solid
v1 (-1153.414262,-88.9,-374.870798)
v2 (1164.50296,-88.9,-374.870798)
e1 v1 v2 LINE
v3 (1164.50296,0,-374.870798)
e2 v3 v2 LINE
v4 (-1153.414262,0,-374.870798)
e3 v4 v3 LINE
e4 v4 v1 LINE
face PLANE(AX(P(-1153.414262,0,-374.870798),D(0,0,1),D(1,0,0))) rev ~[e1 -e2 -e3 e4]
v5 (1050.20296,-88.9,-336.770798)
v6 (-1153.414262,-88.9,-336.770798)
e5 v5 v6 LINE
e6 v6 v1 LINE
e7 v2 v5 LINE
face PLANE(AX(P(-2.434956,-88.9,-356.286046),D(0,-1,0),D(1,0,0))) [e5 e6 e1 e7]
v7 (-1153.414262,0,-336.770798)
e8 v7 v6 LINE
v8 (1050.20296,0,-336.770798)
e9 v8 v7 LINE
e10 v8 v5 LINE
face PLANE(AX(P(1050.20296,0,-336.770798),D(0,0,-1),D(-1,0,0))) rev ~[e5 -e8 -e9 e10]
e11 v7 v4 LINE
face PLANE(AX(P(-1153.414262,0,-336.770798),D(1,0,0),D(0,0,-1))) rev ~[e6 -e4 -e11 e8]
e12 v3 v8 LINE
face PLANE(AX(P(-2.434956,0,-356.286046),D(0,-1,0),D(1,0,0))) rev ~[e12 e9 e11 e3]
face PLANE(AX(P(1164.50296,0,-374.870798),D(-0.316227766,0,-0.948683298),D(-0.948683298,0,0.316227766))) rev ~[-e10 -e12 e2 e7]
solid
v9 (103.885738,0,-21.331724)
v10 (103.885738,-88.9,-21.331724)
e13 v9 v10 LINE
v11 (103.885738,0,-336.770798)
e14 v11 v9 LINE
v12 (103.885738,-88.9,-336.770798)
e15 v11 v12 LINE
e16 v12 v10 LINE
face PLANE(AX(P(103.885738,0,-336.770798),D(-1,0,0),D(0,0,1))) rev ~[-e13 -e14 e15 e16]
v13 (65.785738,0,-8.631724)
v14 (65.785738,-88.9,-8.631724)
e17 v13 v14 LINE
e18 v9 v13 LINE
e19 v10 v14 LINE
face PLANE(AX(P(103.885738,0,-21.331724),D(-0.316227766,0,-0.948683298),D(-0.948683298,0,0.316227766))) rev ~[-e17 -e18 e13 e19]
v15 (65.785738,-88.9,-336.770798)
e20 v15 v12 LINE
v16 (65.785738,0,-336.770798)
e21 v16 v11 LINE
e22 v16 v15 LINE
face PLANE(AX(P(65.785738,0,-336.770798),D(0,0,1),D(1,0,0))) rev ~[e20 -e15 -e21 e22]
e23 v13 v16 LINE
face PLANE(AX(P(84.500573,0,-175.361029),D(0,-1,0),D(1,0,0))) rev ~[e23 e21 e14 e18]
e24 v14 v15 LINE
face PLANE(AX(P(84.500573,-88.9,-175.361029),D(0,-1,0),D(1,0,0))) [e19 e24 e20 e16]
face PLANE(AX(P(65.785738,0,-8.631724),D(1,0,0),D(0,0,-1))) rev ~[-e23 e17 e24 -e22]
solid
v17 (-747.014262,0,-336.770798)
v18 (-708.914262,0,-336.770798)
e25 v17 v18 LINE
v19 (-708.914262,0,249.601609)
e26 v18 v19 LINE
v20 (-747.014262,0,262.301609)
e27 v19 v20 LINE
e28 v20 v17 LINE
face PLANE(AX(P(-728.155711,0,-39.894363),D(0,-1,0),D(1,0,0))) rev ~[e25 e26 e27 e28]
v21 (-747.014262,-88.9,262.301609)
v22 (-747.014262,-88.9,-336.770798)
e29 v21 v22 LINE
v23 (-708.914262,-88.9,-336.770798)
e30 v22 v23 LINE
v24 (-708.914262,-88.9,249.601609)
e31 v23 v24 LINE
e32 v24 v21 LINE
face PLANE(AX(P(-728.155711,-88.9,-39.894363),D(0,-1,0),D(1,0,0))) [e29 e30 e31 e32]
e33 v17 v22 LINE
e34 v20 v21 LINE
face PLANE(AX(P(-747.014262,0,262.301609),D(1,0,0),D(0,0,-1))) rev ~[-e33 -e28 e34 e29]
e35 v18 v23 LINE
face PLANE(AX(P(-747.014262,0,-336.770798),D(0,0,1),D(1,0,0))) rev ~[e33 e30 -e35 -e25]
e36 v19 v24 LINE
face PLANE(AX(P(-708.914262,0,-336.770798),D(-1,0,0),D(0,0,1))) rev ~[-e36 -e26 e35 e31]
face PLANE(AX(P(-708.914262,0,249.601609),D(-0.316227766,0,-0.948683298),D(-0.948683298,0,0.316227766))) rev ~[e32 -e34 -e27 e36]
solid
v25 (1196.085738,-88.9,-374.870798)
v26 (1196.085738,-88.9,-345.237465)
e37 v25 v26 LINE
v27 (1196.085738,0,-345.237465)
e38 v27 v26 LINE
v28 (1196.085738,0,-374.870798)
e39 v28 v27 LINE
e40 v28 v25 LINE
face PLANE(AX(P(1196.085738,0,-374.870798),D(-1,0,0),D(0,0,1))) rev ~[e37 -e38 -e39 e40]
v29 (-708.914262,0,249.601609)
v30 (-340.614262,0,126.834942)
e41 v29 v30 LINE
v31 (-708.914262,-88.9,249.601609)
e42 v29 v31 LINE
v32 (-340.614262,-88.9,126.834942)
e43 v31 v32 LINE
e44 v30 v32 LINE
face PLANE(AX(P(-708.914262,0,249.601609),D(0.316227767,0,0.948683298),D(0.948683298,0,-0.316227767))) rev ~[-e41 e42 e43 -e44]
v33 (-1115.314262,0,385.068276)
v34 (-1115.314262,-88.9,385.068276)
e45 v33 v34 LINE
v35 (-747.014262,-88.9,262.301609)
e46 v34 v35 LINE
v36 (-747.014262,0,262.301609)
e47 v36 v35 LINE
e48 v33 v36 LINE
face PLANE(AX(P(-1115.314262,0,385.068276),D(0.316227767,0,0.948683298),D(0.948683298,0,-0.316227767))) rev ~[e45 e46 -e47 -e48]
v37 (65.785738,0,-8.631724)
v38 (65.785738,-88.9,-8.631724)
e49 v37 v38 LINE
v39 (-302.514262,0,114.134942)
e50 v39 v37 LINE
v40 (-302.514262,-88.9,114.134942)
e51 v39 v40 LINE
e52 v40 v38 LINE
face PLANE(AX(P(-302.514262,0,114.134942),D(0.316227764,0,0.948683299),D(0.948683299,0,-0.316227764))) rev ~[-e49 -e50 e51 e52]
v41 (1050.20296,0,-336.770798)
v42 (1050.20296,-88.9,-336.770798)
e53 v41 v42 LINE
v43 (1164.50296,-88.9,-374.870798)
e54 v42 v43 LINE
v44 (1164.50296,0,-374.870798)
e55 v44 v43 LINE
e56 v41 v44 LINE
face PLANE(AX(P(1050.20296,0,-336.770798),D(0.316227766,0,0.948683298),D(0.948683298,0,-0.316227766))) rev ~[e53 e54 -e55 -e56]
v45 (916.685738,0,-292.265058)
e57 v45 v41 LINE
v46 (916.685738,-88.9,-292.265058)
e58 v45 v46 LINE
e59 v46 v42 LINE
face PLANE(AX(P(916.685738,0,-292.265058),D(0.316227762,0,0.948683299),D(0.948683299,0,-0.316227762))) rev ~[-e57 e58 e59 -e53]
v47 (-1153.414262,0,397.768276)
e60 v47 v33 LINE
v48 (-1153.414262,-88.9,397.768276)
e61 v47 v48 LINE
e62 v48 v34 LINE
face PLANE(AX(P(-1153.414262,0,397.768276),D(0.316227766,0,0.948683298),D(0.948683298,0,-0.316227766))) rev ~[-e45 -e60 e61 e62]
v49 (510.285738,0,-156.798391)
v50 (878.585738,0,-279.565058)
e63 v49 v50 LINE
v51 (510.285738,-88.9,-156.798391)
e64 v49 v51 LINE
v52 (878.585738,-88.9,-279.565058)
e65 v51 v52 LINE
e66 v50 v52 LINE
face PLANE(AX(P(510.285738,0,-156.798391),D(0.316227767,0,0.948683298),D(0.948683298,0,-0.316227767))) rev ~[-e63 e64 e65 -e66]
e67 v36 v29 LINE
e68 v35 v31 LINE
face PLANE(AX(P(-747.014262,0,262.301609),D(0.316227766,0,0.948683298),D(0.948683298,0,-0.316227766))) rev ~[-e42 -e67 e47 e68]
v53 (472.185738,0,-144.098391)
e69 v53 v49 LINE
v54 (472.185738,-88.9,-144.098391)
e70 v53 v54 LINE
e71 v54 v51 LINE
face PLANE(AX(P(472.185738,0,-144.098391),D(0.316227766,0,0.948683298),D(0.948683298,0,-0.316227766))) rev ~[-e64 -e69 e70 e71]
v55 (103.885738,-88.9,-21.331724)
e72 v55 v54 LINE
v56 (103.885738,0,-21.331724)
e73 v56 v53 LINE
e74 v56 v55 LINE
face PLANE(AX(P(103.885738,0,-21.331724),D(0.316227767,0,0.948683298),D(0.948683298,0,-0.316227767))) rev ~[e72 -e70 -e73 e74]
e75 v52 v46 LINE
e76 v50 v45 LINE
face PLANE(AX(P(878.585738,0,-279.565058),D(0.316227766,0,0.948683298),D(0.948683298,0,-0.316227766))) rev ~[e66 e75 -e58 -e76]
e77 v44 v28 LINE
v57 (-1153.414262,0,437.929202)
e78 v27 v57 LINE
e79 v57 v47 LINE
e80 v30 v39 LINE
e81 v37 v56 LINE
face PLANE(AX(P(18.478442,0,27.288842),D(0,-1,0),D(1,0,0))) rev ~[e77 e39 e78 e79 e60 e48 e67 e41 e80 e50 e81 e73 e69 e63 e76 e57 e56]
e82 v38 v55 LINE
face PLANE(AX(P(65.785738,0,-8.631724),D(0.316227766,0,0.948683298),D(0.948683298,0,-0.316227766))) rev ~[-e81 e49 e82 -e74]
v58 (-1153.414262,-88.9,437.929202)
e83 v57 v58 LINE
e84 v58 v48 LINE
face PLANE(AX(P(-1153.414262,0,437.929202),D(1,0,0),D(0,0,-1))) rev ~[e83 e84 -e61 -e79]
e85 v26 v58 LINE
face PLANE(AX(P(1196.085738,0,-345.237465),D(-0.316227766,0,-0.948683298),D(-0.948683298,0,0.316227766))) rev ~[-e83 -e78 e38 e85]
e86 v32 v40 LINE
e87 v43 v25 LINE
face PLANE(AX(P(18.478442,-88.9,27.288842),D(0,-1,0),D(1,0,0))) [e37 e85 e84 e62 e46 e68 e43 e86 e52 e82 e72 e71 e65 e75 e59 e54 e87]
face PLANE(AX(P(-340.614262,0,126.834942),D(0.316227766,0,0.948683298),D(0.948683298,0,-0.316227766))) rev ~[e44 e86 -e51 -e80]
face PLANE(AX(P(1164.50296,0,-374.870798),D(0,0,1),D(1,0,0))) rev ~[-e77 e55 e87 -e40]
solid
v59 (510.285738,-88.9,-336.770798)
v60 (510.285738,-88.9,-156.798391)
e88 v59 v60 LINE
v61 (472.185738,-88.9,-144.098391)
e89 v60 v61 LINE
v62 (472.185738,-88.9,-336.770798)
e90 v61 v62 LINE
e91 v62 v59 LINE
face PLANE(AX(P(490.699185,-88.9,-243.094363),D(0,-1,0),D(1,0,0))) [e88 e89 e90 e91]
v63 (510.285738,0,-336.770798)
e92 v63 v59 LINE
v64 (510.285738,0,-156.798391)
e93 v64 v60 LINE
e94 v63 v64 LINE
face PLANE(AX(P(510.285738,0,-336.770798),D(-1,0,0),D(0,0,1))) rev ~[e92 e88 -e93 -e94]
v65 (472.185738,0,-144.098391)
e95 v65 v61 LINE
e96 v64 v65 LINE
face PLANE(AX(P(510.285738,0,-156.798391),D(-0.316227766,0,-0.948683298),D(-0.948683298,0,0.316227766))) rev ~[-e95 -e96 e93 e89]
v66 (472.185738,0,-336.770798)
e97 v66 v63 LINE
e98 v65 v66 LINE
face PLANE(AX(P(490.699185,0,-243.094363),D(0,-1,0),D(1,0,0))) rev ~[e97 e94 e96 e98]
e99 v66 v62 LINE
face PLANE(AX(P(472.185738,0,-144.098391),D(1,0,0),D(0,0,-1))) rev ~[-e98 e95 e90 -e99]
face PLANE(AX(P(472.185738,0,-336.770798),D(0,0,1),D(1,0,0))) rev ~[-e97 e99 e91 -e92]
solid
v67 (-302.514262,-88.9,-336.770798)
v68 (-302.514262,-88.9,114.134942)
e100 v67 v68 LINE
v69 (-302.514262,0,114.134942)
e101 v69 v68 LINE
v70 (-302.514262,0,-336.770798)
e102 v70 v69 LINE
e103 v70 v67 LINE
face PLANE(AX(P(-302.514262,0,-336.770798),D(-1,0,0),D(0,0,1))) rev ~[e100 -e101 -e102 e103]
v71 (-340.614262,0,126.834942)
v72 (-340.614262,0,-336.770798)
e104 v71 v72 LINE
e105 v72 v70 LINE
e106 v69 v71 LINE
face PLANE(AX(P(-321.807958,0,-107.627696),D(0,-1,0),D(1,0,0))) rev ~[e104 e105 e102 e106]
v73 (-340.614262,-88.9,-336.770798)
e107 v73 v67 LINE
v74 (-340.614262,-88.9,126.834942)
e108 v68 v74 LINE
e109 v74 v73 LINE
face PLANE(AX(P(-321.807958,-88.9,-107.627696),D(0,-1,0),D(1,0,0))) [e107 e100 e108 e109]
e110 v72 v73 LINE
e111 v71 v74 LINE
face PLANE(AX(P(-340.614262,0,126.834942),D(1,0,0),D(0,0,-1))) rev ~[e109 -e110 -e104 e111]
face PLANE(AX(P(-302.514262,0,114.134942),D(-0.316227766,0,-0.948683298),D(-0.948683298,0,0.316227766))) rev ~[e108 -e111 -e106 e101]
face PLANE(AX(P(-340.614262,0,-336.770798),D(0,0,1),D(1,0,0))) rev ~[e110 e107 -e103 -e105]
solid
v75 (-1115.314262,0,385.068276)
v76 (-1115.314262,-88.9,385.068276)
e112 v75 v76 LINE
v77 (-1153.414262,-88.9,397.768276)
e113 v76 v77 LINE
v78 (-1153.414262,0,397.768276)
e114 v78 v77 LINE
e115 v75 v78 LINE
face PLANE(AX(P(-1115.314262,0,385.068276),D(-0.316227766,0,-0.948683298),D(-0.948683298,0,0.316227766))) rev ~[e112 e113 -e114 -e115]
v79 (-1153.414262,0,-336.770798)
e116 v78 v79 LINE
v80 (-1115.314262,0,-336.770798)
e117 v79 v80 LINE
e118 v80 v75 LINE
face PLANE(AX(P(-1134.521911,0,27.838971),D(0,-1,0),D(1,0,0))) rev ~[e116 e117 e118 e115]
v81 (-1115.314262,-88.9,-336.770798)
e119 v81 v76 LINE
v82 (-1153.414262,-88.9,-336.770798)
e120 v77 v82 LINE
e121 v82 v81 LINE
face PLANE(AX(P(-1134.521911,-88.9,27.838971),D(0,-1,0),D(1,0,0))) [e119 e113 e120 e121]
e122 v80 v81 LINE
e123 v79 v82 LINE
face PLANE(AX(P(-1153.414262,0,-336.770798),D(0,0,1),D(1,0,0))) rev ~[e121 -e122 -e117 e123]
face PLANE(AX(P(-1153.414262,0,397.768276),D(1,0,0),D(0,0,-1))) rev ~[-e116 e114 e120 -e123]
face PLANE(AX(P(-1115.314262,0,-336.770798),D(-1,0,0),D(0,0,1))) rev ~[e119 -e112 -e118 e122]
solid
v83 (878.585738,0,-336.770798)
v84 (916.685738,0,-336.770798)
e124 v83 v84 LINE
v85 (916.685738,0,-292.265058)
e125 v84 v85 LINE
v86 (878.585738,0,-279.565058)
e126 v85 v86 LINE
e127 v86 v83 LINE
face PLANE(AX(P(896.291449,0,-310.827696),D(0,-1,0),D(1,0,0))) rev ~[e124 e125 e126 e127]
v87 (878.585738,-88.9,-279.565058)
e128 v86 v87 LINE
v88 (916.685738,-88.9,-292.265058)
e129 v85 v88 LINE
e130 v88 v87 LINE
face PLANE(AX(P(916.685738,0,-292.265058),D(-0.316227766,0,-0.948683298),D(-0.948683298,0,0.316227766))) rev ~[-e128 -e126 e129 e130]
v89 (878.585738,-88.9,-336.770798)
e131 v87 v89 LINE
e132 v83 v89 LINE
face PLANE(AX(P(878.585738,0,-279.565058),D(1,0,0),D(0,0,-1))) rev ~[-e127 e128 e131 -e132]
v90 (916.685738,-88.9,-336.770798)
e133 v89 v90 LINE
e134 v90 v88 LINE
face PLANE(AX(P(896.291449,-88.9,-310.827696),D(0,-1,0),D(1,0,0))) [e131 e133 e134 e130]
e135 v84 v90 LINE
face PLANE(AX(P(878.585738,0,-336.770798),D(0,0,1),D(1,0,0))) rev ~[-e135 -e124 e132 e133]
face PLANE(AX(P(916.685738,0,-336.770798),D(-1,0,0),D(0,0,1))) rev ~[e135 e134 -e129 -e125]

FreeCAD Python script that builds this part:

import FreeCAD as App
import Part
import Sketcher

V = App.Vector
Q = App.Units.Quantity

doc = App.newDocument("Part")
body = doc.addObject("PartDesign::Body", "Body")
body.AllowCompound = True

# Sketch on XZ plane
sketch1 = doc.addObject("Sketcher::SketchObject", "Sketch")
body.addObject(sketch1)
sketch1.AttachmentSupport = (doc.XZ_Plane, [""])
sketch1.MapMode = "FlatFace"
sketch1.addGeometry([
    Part.LineSegment(V(-1153.414262, 397.768276, 0), V(-1153.414262, -336.770798, 0)),  # 0
    Part.LineSegment(V(-1153.414262, -336.770798, 0), V(-1115.314262, -336.770798, 0)),  # 1
    Part.LineSegment(V(-1115.314262, -336.770798, 0), V(-1115.314262, 385.068276, 0)),  # 2
    Part.LineSegment(V(-1115.314262, 385.068276, 0), V(-1153.414262, 397.768276, 0)),  # 3
    Part.LineSegment(V(-747.014262, 262.301609, 0), V(-747.014262, -336.770798, 0)),  # 4
    Part.LineSegment(V(-747.014262, -336.770798, 0), V(-708.914262, -336.770798, 0)),  # 5
    Part.LineSegment(V(-708.914262, -336.770798, 0), V(-708.914262, 249.601609, 0)),  # 6
    Part.LineSegment(V(-708.914262, 249.601609, 0), V(-747.014262, 262.301609, 0)),  # 7
    Part.LineSegment(V(-340.614262, 126.834942, 0), V(-340.614262, -336.770798, 0)),  # 8
    Part.LineSegment(V(-340.614262, -336.770798, 0), V(-302.514262, -336.770798, 0)),  # 9
    Part.LineSegment(V(-302.514262, -336.770798, 0), V(-302.514262, 114.134942, 0)),  # 10
    Part.LineSegment(V(-302.514262, 114.134942, 0), V(-340.614262, 126.834942, 0)),  # 11
    Part.LineSegment(V(65.785738, -336.770798, 0), V(103.885738, -336.770798, 0)),  # 12
    Part.LineSegment(V(103.885738, -336.770798, 0), V(103.885738, -21.331724, 0)),  # 13
    Part.LineSegment(V(103.885738, -21.331724, 0), V(65.785738, -8.631724, 0)),  # 14
    Part.LineSegment(V(65.785738, -8.631724, 0), V(65.785738, -336.770798, 0)),  # 15
    Part.LineSegment(V(472.185738, -336.770798, 0), V(510.285738, -336.770798, 0)),  # 16
    Part.LineSegment(V(510.285738, -336.770798, 0), V(510.285738, -156.798391, 0)),  # 17
    Part.LineSegment(V(510.285738, -156.798391, 0), V(472.185738, -144.098391, 0)),  # 18
    Part.LineSegment(V(472.185738, -144.098391, 0), V(472.185738, -336.770798, 0)),  # 19
    Part.LineSegment(V(878.585738, -336.770798, 0), V(916.685738, -336.770798, 0)),  # 20
    Part.LineSegment(V(916.685738, -336.770798, 0), V(916.685738, -292.265058, 0)),  # 21
    Part.LineSegment(V(916.685738, -292.265058, 0), V(878.585738, -279.565058, 0)),  # 22
    Part.LineSegment(V(878.585738, -279.565058, 0), V(878.585738, -336.770798, 0)),  # 23
], False)
sketch1.addConstraint([
    Sketcher.Constraint("Coincident", 0, 2, 1, 1),
    Sketcher.Constraint("Coincident", 1, 2, 2, 1),
    Sketcher.Constraint("Coincident", 2, 2, 3, 1),
    Sketcher.Constraint("Coincident", 3, 2, 0, 1),
    Sketcher.Constraint("Coincident", 4, 2, 5, 1),
    Sketcher.Constraint("Coincident", 5, 2, 6, 1),
    Sketcher.Constraint("Coincident", 6, 2, 7, 1),
    Sketcher.Constraint("Coincident", 7, 2, 4, 1),
    Sketcher.Constraint("Coincident", 8, 2, 9, 1),
    Sketcher.Constraint("Coincident", 9, 2, 10, 1),
    Sketcher.Constraint("Coincident", 10, 2, 11, 1),
    Sketcher.Constraint("Coincident", 11, 2, 8, 1),
    Sketcher.Constraint("Coincident", 12, 2, 13, 1),
    Sketcher.Constraint("Coincident", 13, 2, 14, 1),
    Sketcher.Constraint("Coincident", 14, 2, 15, 1),
    Sketcher.Constraint("Coincident", 15, 2, 12, 1),
    Sketcher.Constraint("Coincident", 16, 2, 17, 1),
    Sketcher.Constraint("Coincident", 17, 2, 18, 1),
    Sketcher.Constraint("Coincident", 18, 2, 19, 1),
    Sketcher.Constraint("Coincident", 19, 2, 16, 1),
    Sketcher.Constraint("Coincident", 20, 2, 21, 1),
    Sketcher.Constraint("Coincident", 21, 2, 22, 1),
    Sketcher.Constraint("Coincident", 22, 2, 23, 1),
    Sketcher.Constraint("Coincident", 23, 2, 20, 1),
    Sketcher.Constraint("Vertical", 0),
    Sketcher.Constraint("Horizontal", 1),
    Sketcher.Constraint("Vertical", 2),
    Sketcher.Constraint("Vertical", 4),
    Sketcher.Constraint("Horizontal", 5),
    Sketcher.Constraint("Vertical", 6),
    Sketcher.Constraint("Vertical", 8),
    Sketcher.Constraint("Horizontal", 9),
    Sketcher.Constraint("Vertical", 10),
    Sketcher.Constraint("Horizontal", 12),
    Sketcher.Constraint("Vertical", 13),
    Sketcher.Constraint("Vertical", 15),
    Sketcher.Constraint("Horizontal", 16),
    Sketcher.Constraint("Vertical", 17),
    Sketcher.Constraint("Vertical", 19),
    Sketcher.Constraint("Horizontal", 20),
    Sketcher.Constraint("Vertical", 21),
    Sketcher.Constraint("Vertical", 23),
    Sketcher.Constraint("Parallel", 3, 7),
    Sketcher.Constraint("Parallel", 7, 11),
    Sketcher.Constraint("Parallel", 11, 14),
    Sketcher.Constraint("Parallel", 14, 18),
    Sketcher.Constraint("Parallel", 18, 22),
    Sketcher.Constraint("Horizontal", 1, 2, 4, 2),
    Sketcher.Constraint("Horizontal", 5, 2, 8, 2),
    Sketcher.Constraint("Horizontal", 9, 2, 12, 2),
    Sketcher.Constraint("Horizontal", 15, 2, 16, 2),
    Sketcher.Constraint("Horizontal", 19, 2, 20, 2),
    Sketcher.Constraint("Equal", 1, 5),
    Sketcher.Constraint("Equal", 5, 9),
    Sketcher.Constraint("Equal", 9, 12),
    Sketcher.Constraint("Equal", 12, 16),
    Sketcher.Constraint("Equal", 16, 20),
    Sketcher.Constraint("DistanceX", 1, 1, 1, 2, Q("1.5 in")),
    Sketcher.Constraint("DistanceX", 0, 2, 4, 2, Q("16 in")),
    Sketcher.Constraint("DistanceX", 4, 2, 8, 2, Q("16 in")),
    Sketcher.Constraint("DistanceX", 9, 2, 12, 2, Q("16 in")),
    Sketcher.Constraint("DistanceX", 12, 2, 16, 2, Q("16 in")),
    Sketcher.Constraint("DistanceX", 16, 2, 20, 2, Q("16 in")),
    Sketcher.Constraint("DistanceY", 2, 2, 3, 2, Q("0.5 in")),
    Sketcher.Constraint("DistanceY", 8, 2, 8, 1, 463.60574),
    Sketcher.Constraint("DistanceY", 21, 1, 21, 2, 44.50574),
    Sketcher.Constraint("DistanceY", 0, 2, -1, 1, 336.770798),
    Sketcher.Constraint("DistanceY", 0, 2, 0, 1, 734.539074),
    Sketcher.Constraint("DistanceY", 4, 2, 4, 1, 599.072407),
    Sketcher.Constraint("DistanceY", 13, 1, 13, 2, 315.439074),
    Sketcher.Constraint("DistanceY", 17, 1, 17, 2, 179.972407),
    Sketcher.Constraint("DistanceX", 0, 2, -1, 1, 1153.414262),
])
pad1 = doc.addObject("PartDesign::Pad", "Pad")
body.addObject(pad1)
pad1.Profile = sketch1
pad1.Length = Q("3.5 in")
body2 = doc.addObject("PartDesign::Body", "Body001")

# Sketch on XZ plane
sketch2 = doc.addObject("Sketcher::SketchObject", "Sketch001")
body2.addObject(sketch2)
sketch2.AttachmentSupport = (doc.getObject("XZ_Plane001"), [""])
sketch2.MapMode = "FlatFace"
sketch2.addGeometry([
    Part.LineSegment(V(1050.20296, -336.770798, 0), V(1164.50296, -374.870798, 0)),  # 0
    Part.LineSegment(V(1164.50296, -374.870798, 0), V(1196.085738, -374.870798, 0)),  # 1
    Part.LineSegment(V(1196.085738, -374.870798, 0), V(1196.085738, -345.237465, 0)),  # 2
    Part.LineSegment(V(1196.085738, -345.237465, 0), V(-1153.414262, 437.929202, 0)),  # 3
    Part.LineSegment(V(-1153.414262, 437.929202, 0), V(-1153.414262, 397.768276, 0)),  # 4
    Part.LineSegment(V(-1153.414262, 397.768276, 0), V(-1115.314262, 385.068276, 0)),  # 5
    Part.LineSegment(V(-1115.314262, 385.068276, 0), V(-747.014262, 262.301609, 0)),  # 6
    Part.LineSegment(V(-747.014262, 262.301609, 0), V(-708.914262, 249.601609, 0)),  # 7
    Part.LineSegment(V(-708.914262, 249.601609, 0), V(-340.614262, 126.834942, 0)),  # 8
    Part.LineSegment(V(-340.614262, 126.834942, 0), V(-302.514262, 114.134942, 0)),  # 9
    Part.LineSegment(V(-302.514262, 114.134942, 0), V(65.785738, -8.631724, 0)),  # 10
    Part.LineSegment(V(65.785738, -8.631724, 0), V(103.885738, -21.331724, 0)),  # 11
    Part.LineSegment(V(103.885738, -21.331724, 0), V(472.185738, -144.098391, 0)),  # 12
    Part.LineSegment(V(472.185738, -144.098391, 0), V(510.285738, -156.798391, 0)),  # 13
    Part.LineSegment(V(510.285738, -156.798391, 0), V(878.585738, -279.565058, 0)),  # 14
    Part.LineSegment(V(878.585738, -279.565058, 0), V(916.685738, -292.265058, 0)),  # 15
    Part.LineSegment(V(916.685738, -292.265058, 0), V(1050.20296, -336.770798, 0)),  # 16
], False)
sketch2.addConstraint([
    Sketcher.Constraint("Coincident", 0, 2, 1, 1),
    Sketcher.Constraint("Coincident", 1, 2, 2, 1),
    Sketcher.Constraint("Coincident", 2, 2, 3, 1),
    Sketcher.Constraint("Coincident", 3, 2, 4, 1),
    Sketcher.Constraint("Coincident", 4, 2, 5, 1),
    Sketcher.Constraint("Coincident", 5, 2, 6, 1),
    Sketcher.Constraint("Coincident", 6, 2, 7, 1),
    Sketcher.Constraint("Coincident", 7, 2, 8, 1),
    Sketcher.Constraint("Coincident", 8, 2, 9, 1),
    Sketcher.Constraint("Coincident", 9, 2, 10, 1),
    Sketcher.Constraint("Coincident", 10, 2, 11, 1),
    Sketcher.Constraint("Coincident", 11, 2, 12, 1),
    Sketcher.Constraint("Coincident", 12, 2, 13, 1),
    Sketcher.Constraint("Coincident", 13, 2, 14, 1),
    Sketcher.Constraint("Coincident", 14, 2, 15, 1),
    Sketcher.Constraint("Coincident", 15, 2, 16, 1),
    Sketcher.Constraint("Coincident", 16, 2, 0, 1),
    Sketcher.Constraint("Horizontal", 1),
    Sketcher.Constraint("Vertical", 2),
    Sketcher.Constraint("Vertical", 4),
    Sketcher.Constraint("Parallel", 0, 3),
    Sketcher.Constraint("Parallel", 3, 5),
    Sketcher.Constraint("Parallel", 5, 6),
    Sketcher.Constraint("Parallel", 6, 7),
    Sketcher.Constraint("Parallel", 7, 8),
    Sketcher.Constraint("Parallel", 8, 9),
    Sketcher.Constraint("Parallel", 9, 10),
    Sketcher.Constraint("Parallel", 10, 11),
    Sketcher.Constraint("Parallel", 11, 12),
    Sketcher.Constraint("Parallel", 12, 13),
    Sketcher.Constraint("Parallel", 13, 14),
    Sketcher.Constraint("Parallel", 14, 15),
    Sketcher.Constraint("Parallel", 15, 16),
    Sketcher.Constraint("Equal", 5, 7),
    Sketcher.Constraint("Equal", 6, 8),
    Sketcher.Constraint("Equal", 7, 9),
    Sketcher.Constraint("Equal", 8, 10),
    Sketcher.Constraint("Equal", 9, 11),
    Sketcher.Constraint("Equal", 10, 12),
    Sketcher.Constraint("Equal", 11, 13),
    Sketcher.Constraint("Equal", 12, 14),
    Sketcher.Constraint("Equal", 13, 15),
    Sketcher.Constraint("DistanceY", 0, 2, 3, 2, Q("32 in")),
    Sketcher.Constraint("DistanceX", 5, 2, 2, 2, Q("91 in")),
    Sketcher.Constraint("DistanceX", 4, 2, 6, 2, Q("16 in")),
    Sketcher.Constraint("DistanceX", 3, 2, 2, 2, Q("92.5 in")),
    Sketcher.Constraint("DistanceY", 5, 2, 4, 2, Q("0.5 in")),
    Sketcher.Constraint("DistanceX", 16, 2, 0, 2, Q("4.5 in")),
    Sketcher.Constraint("DistanceY", 0, 2, -1, 1, 374.870798),
    Sketcher.Constraint("Distance", 16, 140.739509),
    Sketcher.Constraint("DistanceX", -1, 1, 0, 2, 1164.50296),
])
pad2 = doc.addObject("PartDesign::Pad", "Pad001")
body2.addObject(pad2)
pad2.Profile = sketch2
pad2.Length = Q("3.5 in")
body3 = doc.addObject("PartDesign::Body", "Body002")

# Sketch on XZ plane
sketch3 = doc.addObject("Sketcher::SketchObject", "Sketch002")
body3.addObject(sketch3)
sketch3.AttachmentSupport = (doc.getObject("XZ_Plane002"), [""])
sketch3.MapMode = "FlatFace"
sketch3.addGeometry([
    Part.LineSegment(V(-1153.414262, -336.770798, 0), V(-1153.414262, -374.870798, 0)),
    Part.LineSegment(V(-1153.414262, -374.870798, 0), V(1164.50296, -374.870798, 0)),
    Part.LineSegment(V(1164.50296, -374.870798, 0), V(1050.20296, -336.770798, 0)),
    Part.LineSegment(V(1050.20296, -336.770798, 0), V(-1153.414262, -336.770798, 0)),
], False)
sketch3.addConstraint([
    Sketcher.Constraint("Coincident", 0, 2, 1, 1),
    Sketcher.Constraint("Coincident", 1, 2, 2, 1),
    Sketcher.Constraint("Coincident", 2, 2, 3, 1),
    Sketcher.Constraint("Coincident", 3, 2, 0, 1),
    Sketcher.Constraint("Vertical", 0),
    Sketcher.Constraint("Horizontal", 1),
    Sketcher.Constraint("Horizontal", 3),
    Sketcher.Constraint("DistanceY", 0, 2, 0, 1, Q("1.5 in")),
    Sketcher.Constraint("DistanceX", 2, 2, 1, 2, Q("4.5 in")),
    Sketcher.Constraint("DistanceX", 3, 2, 3, 1, 2203.617222),
    Sketcher.Constraint("DistanceY", 0, 2, -1, 1, 374.870798),
    Sketcher.Constraint("DistanceX", 0, 2, -1, 1, 1153.414262),
])
pad3 = doc.addObject("PartDesign::Pad", "Pad002")
body3.addObject(pad3)
pad3.Profile = sketch3
pad3.Length = Q("3.5 in")

doc.recompute()
